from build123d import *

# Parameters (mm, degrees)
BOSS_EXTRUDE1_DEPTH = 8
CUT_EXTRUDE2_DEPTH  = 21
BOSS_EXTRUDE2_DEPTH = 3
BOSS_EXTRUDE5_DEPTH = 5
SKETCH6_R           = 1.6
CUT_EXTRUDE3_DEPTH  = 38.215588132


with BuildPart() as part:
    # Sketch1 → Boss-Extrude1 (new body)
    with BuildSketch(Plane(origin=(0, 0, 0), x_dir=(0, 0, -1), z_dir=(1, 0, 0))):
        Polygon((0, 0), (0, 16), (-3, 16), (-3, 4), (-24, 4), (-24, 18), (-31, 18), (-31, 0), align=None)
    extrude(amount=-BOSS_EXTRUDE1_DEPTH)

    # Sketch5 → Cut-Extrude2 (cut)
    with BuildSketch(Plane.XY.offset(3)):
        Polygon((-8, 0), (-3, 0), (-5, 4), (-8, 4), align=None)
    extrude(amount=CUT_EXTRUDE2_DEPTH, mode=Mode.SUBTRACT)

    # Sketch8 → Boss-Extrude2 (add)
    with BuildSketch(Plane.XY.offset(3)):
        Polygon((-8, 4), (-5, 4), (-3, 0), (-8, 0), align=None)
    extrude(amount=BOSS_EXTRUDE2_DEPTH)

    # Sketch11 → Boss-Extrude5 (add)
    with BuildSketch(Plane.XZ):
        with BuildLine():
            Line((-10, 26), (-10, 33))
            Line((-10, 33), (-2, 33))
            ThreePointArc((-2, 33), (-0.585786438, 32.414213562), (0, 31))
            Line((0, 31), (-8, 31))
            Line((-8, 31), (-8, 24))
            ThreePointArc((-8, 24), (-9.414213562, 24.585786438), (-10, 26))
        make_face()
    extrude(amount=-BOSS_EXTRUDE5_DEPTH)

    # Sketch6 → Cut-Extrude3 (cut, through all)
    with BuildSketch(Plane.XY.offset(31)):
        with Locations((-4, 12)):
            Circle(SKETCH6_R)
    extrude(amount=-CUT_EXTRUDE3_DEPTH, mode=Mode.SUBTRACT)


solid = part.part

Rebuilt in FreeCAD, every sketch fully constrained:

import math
import FreeCAD as App
import Part
import Sketcher
from FreeCAD import Vector

doc = App.newDocument("Part")
body = doc.addObject("PartDesign::Body", "Body")

# Sketch on YZ plane
sketch1 = body.newObject("Sketcher::SketchObject", "Sketch")
sketch1.AttachmentSupport = (doc.getObject("YZ_Plane"), [""])
sketch1.MapMode = "FlatFace"
sketch1.addGeometry(Part.LineSegment(Vector(0, 0, 0), Vector(16, 0, 0)), False)
sketch1.addGeometry(Part.LineSegment(Vector(16, 0, 0), Vector(16, 3, 0)), False)
sketch1.addGeometry(Part.LineSegment(Vector(16, 3, 0), Vector(4, 3, 0)), False)
sketch1.addGeometry(Part.LineSegment(Vector(4, 3, 0), Vector(4, 24, 0)), False)
sketch1.addGeometry(Part.LineSegment(Vector(4, 24, 0), Vector(18, 24, 0)), False)
sketch1.addGeometry(Part.LineSegment(Vector(18, 24, 0), Vector(18, 31, 0)), False)
sketch1.addGeometry(Part.LineSegment(Vector(18, 31, 0), Vector(0, 31, 0)), False)
sketch1.addGeometry(Part.LineSegment(Vector(0, 31, 0), Vector(0, 0, 0)), False)
sketch1.addConstraint(Sketcher.Constraint("Coincident", 0, 2, 1, 1))
sketch1.addConstraint(Sketcher.Constraint("Coincident", 1, 2, 2, 1))
sketch1.addConstraint(Sketcher.Constraint("Coincident", 2, 2, 3, 1))
sketch1.addConstraint(Sketcher.Constraint("Coincident", 3, 2, 4, 1))
sketch1.addConstraint(Sketcher.Constraint("Coincident", 4, 2, 5, 1))
sketch1.addConstraint(Sketcher.Constraint("Coincident", 5, 2, 6, 1))
sketch1.addConstraint(Sketcher.Constraint("Coincident", 6, 2, 7, 1))
sketch1.addConstraint(Sketcher.Constraint("Coincident", 7, 2, 0, 1))
sketch1.addConstraint(Sketcher.Constraint("Horizontal", 0))
sketch1.addConstraint(Sketcher.Constraint("Vertical", 1))
sketch1.addConstraint(Sketcher.Constraint("Horizontal", 2))
sketch1.addConstraint(Sketcher.Constraint("Vertical", 3))
sketch1.addConstraint(Sketcher.Constraint("Horizontal", 4))
sketch1.addConstraint(Sketcher.Constraint("Vertical", 5))
sketch1.addConstraint(Sketcher.Constraint("Horizontal", 6))
sketch1.addConstraint(Sketcher.Constraint("Vertical", 7))
sketch1.addConstraint(Sketcher.Constraint("Coincident", 7, 2, -1, 1))
sketch1.addConstraint(Sketcher.Constraint("DistanceX", 0, 1, 0, 2, 16.0))
sketch1.addConstraint(Sketcher.Constraint("DistanceX", 2, 2, 2, 1, 12.0))
sketch1.addConstraint(Sketcher.Constraint("DistanceX", 4, 1, 4, 2, 14.0))
sketch1.addConstraint(Sketcher.Constraint("DistanceY", 1, 1, 1, 2, 3.0))
sketch1.addConstraint(Sketcher.Constraint("DistanceY", 3, 1, 3, 2, 21.0))
sketch1.addConstraint(Sketcher.Constraint("DistanceY", 5, 1, 5, 2, 7.0))
pad1 = body.newObject("PartDesign::Pad", "Pad")
pad1.Profile = sketch1
pad1.Length = 8
pad1.Reversed = True

# Sketch on XY plane
sketch2 = body.newObject("Sketcher::SketchObject", "Sketch001")
sketch2.AttachmentSupport = (doc.getObject("XY_Plane"), [""])
sketch2.MapMode = "FlatFace"
sketch2.AttachmentOffset = App.Placement(Vector(0, 0, 3), App.Rotation())
sketch2.addGeometry(Part.LineSegment(Vector(-8, 0, 0), Vector(-3, 0, 0)), False)
sketch2.addGeometry(Part.LineSegment(Vector(-3, 0, 0), Vector(-5, 4, 0)), False)
sketch2.addGeometry(Part.LineSegment(Vector(-5, 4, 0), Vector(-8, 4, 0)), False)
sketch2.addGeometry(Part.LineSegment(Vector(-8, 4, 0), Vector(-8, 0, 0)), False)
sketch2.addConstraint(Sketcher.Constraint("Coincident", 0, 2, 1, 1))
sketch2.addConstraint(Sketcher.Constraint("Coincident", 1, 2, 2, 1))
sketch2.addConstraint(Sketcher.Constraint("Coincident", 2, 2, 3, 1))
sketch2.addConstraint(Sketcher.Constraint("Coincident", 3, 2, 0, 1))
sketch2.addConstraint(Sketcher.Constraint("Horizontal", 0))
sketch2.addConstraint(Sketcher.Constraint("Horizontal", 2))
sketch2.addConstraint(Sketcher.Constraint("Vertical", 3))
sketch2.addConstraint(Sketcher.Constraint("PointOnObject", 0, 2, -1))
sketch2.addConstraint(Sketcher.Constraint("DistanceX", 0, 1, 0, 2, 5.0))
sketch2.addConstraint(Sketcher.Constraint("DistanceX", 2, 2, 2, 1, 3.0))
sketch2.addConstraint(Sketcher.Constraint("DistanceY", 3, 2, 3, 1, 4.0))
sketch2.addConstraint(Sketcher.Constraint("DistanceX", 0, 2, -1, 1, 3.0))
pocket1 = body.newObject("PartDesign::Pocket", "Pocket")
pocket1.Profile = sketch2
pocket1.Length = 21
pocket1.Reversed = True

# Sketch on XY plane
sketch3 = body.newObject("Sketcher::SketchObject", "Sketch002")
sketch3.AttachmentSupport = (doc.getObject("XY_Plane"), [""])
sketch3.MapMode = "FlatFace"
sketch3.AttachmentOffset = App.Placement(Vector(0, 0, 3), App.Rotation())
sketch3.addGeometry(Part.LineSegment(Vector(-5, 4, 0), Vector(-8, 4, 0)), False)
sketch3.addGeometry(Part.LineSegment(Vector(-8, 4, 0), Vector(-8, 0, 0)), False)
sketch3.addGeometry(Part.LineSegment(Vector(-8, 0, 0), Vector(-3, 0, 0)), False)
sketch3.addGeometry(Part.LineSegment(Vector(-3, 0, 0), Vector(-5, 4, 0)), False)
sketch3.addConstraint(Sketcher.Constraint("Coincident", 0, 2, 1, 1))
sketch3.addConstraint(Sketcher.Constraint("Coincident", 1, 2, 2, 1))
sketch3.addConstraint(Sketcher.Constraint("Coincident", 2, 2, 3, 1))
sketch3.addConstraint(Sketcher.Constraint("Coincident", 3, 2, 0, 1))
sketch3.addConstraint(Sketcher.Constraint("Horizontal", 0))
sketch3.addConstraint(Sketcher.Constraint("Vertical", 1))
sketch3.addConstraint(Sketcher.Constraint("Horizontal", 2))
sketch3.addConstraint(Sketcher.Constraint("PointOnObject", 1, 2, -1))
sketch3.addConstraint(Sketcher.Constraint("DistanceX", 0, 2, 0, 1, 3.0))
sketch3.addConstraint(Sketcher.Constraint("DistanceX", 2, 1, 2, 2, 5.0))
sketch3.addConstraint(Sketcher.Constraint("DistanceY", 1, 2, 1, 1, 4.0))
sketch3.addConstraint(Sketcher.Constraint("DistanceX", 0, 2, -1, 1, 8.0))
pad2 = body.newObject("PartDesign::Pad", "Pad001")
pad2.Profile = sketch3
pad2.Length = 3

# Sketch on XZ plane
sketch4 = body.newObject("Sketcher::SketchObject", "Sketch003")
sketch4.AttachmentSupport = (doc.getObject("XZ_Plane"), [""])
sketch4.MapMode = "FlatFace"
sketch4.addGeometry(Part.LineSegment(Vector(-10, 33, 0), Vector(-10, 26, 0)), False)
sketch4.addGeometry(Part.ArcOfCircle(Part.Circle(Vector(-8, 26, 0), Vector(0, 0, 1), 2), math.radians(-180), math.radians(-90)), False)
sketch4.addGeometry(Part.LineSegment(Vector(-8, 24, 0), Vector(-8, 31, 0)), False)
sketch4.addGeometry(Part.LineSegment(Vector(-8, 31, 0), Vector(0, 31, 0)), False)
sketch4.addGeometry(Part.ArcOfCircle(Part.Circle(Vector(-2, 31, 0), Vector(0, 0, 1), 2), math.radians(0), math.radians(90)), False)
sketch4.addGeometry(Part.LineSegment(Vector(-2, 33, 0), Vector(-10, 33, 0)), False)
sketch4.addConstraint(Sketcher.Constraint("Tangent", 0, 2, 1, 1))
sketch4.addConstraint(Sketcher.Constraint("Coincident", 1, 2, 2, 1))
sketch4.addConstraint(Sketcher.Constraint("Coincident", 2, 2, 3, 1))
sketch4.addConstraint(Sketcher.Constraint("Coincident", 3, 2, 4, 1))
sketch4.addConstraint(Sketcher.Constraint("Tangent", 4, 2, 5, 1))
sketch4.addConstraint(Sketcher.Constraint("Coincident", 5, 2, 0, 1))
sketch4.addConstraint(Sketcher.Constraint("Vertical", 0))
sketch4.addConstraint(Sketcher.Constraint("Vertical", 2))
sketch4.addConstraint(Sketcher.Constraint("Horizontal", 3))
sketch4.addConstraint(Sketcher.Constraint("Horizontal", 5))
sketch4.addConstraint(Sketcher.Constraint("Equal", 1, 4))
sketch4.addConstraint(Sketcher.Constraint("PointOnObject", 3, 2, -2))
sketch4.addConstraint(Sketcher.Constraint("Horizontal", 4, 3, 2, 2))
sketch4.addConstraint(Sketcher.Constraint("Equal", 3, 5))
sketch4.addConstraint(Sketcher.Constraint("Radius", 1, 2.0))
sketch4.addConstraint(Sketcher.Constraint("DistanceX", 3, 1, 3, 2, 8.0))
sketch4.addConstraint(Sketcher.Constraint("DistanceY", 0, 2, 0, 1, 7.0))
sketch4.addConstraint(Sketcher.Constraint("DistanceY", -1, 1, 1, 3, 26.0))
pad3 = body.newObject("PartDesign::Pad", "Pad002")
pad3.Profile = sketch4
pad3.Length = 5
pad3.Reversed = True

# Sketch on XY plane
sketch5 = body.newObject("Sketcher::SketchObject", "Sketch004")
sketch5.AttachmentSupport = (doc.getObject("XY_Plane"), [""])
sketch5.MapMode = "FlatFace"
sketch5.AttachmentOffset = App.Placement(Vector(0, 0, 31), App.Rotation())
sketch5.addGeometry(Part.Circle(Vector(-4, 12, 0), Vector(0, 0, 1), 1.6), False)
sketch5.addConstraint(Sketcher.Constraint("Diameter", 0, 3.2))
sketch5.addConstraint(Sketcher.Constraint("DistanceX", 0, 3, -1, 1, 4.0))
sketch5.addConstraint(Sketcher.Constraint("DistanceY", -1, 1, 0, 3, 12.0))
pocket2 = body.newObject("PartDesign::Pocket", "Pocket001")
pocket2.Profile = sketch5
pocket2.Type = "ThroughAll"

doc.recompute()
